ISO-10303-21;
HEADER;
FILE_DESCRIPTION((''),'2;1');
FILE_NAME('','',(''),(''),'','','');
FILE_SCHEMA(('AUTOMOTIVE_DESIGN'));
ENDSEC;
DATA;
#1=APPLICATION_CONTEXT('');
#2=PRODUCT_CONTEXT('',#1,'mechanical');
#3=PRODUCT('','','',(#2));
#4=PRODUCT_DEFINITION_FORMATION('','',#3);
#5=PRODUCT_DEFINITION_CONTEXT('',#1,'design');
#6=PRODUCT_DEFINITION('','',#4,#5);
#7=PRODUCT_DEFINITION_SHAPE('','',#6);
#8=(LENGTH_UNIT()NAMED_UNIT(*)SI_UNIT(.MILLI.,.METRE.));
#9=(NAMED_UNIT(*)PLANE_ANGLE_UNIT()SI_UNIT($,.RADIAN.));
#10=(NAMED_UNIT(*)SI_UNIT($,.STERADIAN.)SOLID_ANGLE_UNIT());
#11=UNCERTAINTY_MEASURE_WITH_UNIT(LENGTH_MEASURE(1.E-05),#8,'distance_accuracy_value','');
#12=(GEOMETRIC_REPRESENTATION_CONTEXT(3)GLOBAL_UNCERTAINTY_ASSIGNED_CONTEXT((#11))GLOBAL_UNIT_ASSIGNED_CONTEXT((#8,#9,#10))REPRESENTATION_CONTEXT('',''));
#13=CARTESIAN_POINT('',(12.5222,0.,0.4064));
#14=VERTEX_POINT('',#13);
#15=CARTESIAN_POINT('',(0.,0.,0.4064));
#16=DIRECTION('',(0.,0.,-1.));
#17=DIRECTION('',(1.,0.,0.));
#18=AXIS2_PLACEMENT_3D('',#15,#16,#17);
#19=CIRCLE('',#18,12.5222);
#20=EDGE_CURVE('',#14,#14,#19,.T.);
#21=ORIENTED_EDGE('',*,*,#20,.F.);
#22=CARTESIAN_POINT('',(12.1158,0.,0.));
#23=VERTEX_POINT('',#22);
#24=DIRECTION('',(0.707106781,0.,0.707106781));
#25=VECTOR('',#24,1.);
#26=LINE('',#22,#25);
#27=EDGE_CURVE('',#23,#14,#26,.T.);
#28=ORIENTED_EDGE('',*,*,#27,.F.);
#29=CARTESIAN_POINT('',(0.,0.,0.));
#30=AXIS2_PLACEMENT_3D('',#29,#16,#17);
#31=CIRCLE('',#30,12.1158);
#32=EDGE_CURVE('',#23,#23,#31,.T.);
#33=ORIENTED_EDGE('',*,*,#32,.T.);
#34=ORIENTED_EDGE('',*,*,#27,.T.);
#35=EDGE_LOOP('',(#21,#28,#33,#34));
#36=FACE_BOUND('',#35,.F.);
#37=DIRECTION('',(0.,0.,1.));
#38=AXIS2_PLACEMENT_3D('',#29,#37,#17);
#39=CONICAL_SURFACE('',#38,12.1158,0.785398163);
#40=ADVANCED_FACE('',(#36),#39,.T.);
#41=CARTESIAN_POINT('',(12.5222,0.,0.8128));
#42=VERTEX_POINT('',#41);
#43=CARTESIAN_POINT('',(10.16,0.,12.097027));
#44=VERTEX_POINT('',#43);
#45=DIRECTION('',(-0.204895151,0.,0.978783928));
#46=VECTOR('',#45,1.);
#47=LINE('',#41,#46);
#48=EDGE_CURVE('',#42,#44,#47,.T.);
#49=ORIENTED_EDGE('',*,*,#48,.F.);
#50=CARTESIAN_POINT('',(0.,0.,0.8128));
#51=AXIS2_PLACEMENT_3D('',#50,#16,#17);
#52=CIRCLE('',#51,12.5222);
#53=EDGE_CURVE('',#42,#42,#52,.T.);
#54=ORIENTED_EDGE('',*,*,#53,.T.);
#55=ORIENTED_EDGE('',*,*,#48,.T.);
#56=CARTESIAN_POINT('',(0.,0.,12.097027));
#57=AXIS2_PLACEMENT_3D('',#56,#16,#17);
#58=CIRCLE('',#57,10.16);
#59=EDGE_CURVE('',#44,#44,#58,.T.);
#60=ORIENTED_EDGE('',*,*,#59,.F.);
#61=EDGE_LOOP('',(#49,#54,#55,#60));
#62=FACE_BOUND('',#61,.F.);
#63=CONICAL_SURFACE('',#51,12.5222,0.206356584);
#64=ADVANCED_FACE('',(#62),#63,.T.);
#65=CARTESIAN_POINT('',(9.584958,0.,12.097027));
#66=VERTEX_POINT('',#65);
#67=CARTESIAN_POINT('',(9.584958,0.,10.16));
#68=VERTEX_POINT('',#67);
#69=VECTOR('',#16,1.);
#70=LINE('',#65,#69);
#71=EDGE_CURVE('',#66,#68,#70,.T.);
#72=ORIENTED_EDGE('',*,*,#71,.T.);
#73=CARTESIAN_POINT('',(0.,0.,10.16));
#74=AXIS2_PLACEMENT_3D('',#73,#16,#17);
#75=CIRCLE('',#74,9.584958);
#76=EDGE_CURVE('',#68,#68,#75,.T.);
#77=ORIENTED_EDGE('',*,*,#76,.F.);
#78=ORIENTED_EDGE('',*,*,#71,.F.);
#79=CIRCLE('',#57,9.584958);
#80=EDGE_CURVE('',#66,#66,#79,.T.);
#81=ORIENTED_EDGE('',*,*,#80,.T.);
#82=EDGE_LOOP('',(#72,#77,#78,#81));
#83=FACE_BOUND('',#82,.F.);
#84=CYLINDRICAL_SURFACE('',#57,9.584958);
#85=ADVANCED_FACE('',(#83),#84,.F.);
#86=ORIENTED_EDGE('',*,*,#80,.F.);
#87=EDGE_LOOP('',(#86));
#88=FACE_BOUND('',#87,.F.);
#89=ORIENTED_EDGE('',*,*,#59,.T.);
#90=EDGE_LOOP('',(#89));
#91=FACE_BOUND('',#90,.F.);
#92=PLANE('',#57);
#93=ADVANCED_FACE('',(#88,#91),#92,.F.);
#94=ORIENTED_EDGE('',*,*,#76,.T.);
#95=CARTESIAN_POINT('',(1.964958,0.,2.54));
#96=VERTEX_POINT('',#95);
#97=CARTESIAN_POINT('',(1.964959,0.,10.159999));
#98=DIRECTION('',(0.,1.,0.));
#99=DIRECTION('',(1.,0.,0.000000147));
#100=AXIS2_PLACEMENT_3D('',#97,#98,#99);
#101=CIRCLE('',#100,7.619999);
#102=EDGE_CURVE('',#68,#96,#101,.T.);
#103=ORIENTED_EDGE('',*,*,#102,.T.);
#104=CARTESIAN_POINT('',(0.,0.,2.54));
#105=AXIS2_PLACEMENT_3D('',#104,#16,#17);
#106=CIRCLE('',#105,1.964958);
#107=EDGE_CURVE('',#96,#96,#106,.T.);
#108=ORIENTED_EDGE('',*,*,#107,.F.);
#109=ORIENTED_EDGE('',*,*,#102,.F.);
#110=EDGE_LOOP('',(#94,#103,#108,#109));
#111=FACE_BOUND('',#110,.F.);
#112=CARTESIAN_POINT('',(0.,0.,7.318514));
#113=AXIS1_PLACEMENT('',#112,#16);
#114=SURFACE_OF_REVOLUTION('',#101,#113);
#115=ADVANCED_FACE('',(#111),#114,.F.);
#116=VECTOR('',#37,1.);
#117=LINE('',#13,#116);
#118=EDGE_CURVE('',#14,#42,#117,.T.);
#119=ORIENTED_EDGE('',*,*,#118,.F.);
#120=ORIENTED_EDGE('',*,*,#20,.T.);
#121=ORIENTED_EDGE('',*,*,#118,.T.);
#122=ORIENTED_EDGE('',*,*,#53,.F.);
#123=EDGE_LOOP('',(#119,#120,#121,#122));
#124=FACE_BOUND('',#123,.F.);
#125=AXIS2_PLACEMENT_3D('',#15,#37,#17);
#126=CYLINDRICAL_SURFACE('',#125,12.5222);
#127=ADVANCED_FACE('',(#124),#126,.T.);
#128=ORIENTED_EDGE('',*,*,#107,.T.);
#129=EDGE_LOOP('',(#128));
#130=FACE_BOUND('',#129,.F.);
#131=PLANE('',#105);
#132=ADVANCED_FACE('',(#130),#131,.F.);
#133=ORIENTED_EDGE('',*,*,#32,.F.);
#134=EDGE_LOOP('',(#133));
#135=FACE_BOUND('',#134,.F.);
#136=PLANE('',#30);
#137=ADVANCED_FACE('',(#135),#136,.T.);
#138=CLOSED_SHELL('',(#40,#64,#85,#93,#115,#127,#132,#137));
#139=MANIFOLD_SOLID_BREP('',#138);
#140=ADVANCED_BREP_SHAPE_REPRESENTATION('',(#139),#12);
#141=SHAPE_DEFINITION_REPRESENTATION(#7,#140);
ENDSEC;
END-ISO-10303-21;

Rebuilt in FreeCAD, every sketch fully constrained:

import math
import FreeCAD as App
import Part
import Sketcher
from FreeCAD import Vector
Q = App.Units.Quantity

doc = App.newDocument("Part")
body = doc.addObject("PartDesign::Body", "Body")

sketch1 = body.newObject("Sketcher::SketchObject", "Sketch")
sketch1.AttachmentSupport = (doc.getObject("XZ_Plane"), [""])
sketch1.MapMode = "FlatFace"
sketch1.addGeometry(Part.LineSegment(Vector(0, 2.54, 0), Vector(0, 0, 0)), False)
sketch1.addGeometry(Part.LineSegment(Vector(0, 0, 0), Vector(12.12, 0, 0)), False)
sketch1.addGeometry(Part.LineSegment(Vector(12.12, 0, 0), Vector(12.52, 0.41, 0)), False)
sketch1.addGeometry(Part.LineSegment(Vector(12.52, 0.41, 0), Vector(12.52, 0.81, 0)), False)
sketch1.addGeometry(Part.LineSegment(Vector(12.52, 0.81, 0), Vector(10.16, 12.1, 0)), False)
sketch1.addGeometry(Part.LineSegment(Vector(10.16, 12.1, 0), Vector(9.58, 12.1, 0)), False)
sketch1.addGeometry(Part.LineSegment(Vector(9.58, 12.1, 0), Vector(9.58, 10.16, 0)), False)
sketch1.addGeometry(Part.ArcOfCircle(Part.Circle(Vector(1.96, 10.16, 0), Vector(0, 0, 1), 7.62), math.radians(-90), math.radians(0)), False)
sketch1.addGeometry(Part.LineSegment(Vector(1.96, 2.54, 0), Vector(0, 2.54, 0)), False)
sketch1.addConstraint(Sketcher.Constraint("Coincident", 0, 2, 1, 1))
sketch1.addConstraint(Sketcher.Constraint("Coincident", 1, 2, 2, 1))
sketch1.addConstraint(Sketcher.Constraint("Coincident", 2, 2, 3, 1))
sketch1.addConstraint(Sketcher.Constraint("Coincident", 3, 2, 4, 1))
sketch1.addConstraint(Sketcher.Constraint("Coincident", 4, 2, 5, 1))
sketch1.addConstraint(Sketcher.Constraint("Coincident", 5, 2, 6, 1))
sketch1.addConstraint(Sketcher.Constraint("Tangent", 6, 2, 7, 2))
sketch1.addConstraint(Sketcher.Constraint("Tangent", 7, 1, 8, 1))
sketch1.addConstraint(Sketcher.Constraint("Coincident", 8, 2, 0, 1))
sketch1.addConstraint(Sketcher.Constraint("Vertical", 0))
sketch1.addConstraint(Sketcher.Constraint("Horizontal", 1))
sketch1.addConstraint(Sketcher.Constraint("Vertical", 3))
sketch1.addConstraint(Sketcher.Constraint("Horizontal", 5))
sketch1.addConstraint(Sketcher.Constraint("Vertical", 6))
sketch1.addConstraint(Sketcher.Constraint("Horizontal", 8))
sketch1.addConstraint(Sketcher.Constraint("Coincident", 0, 2, -1, 1))
sketch1.addConstraint(Sketcher.Constraint("Radius", 7, Q("0.3 in")))
sketch1.addConstraint(Sketcher.Constraint("DistanceY", 0, 2, 0, 1, Q("0.1 in")))
sketch1.addConstraint(Sketcher.Constraint("Angle", 2, Q("45 deg")))
sketch1.addConstraint(Sketcher.Constraint("DistanceX", -1, 1, 4, 2, Q("0.4 in")))
sketch1.addConstraint(Sketcher.Constraint("DistanceX", 1, 1, 1, 2, Q("0.477 in")))
sketch1.addConstraint(Sketcher.Constraint("DistanceY", 3, 1, 3, 2, Q("0.016 in")))
sketch1.addConstraint(Sketcher.Constraint("DistanceX", -1, 1, 2, 2, Q("0.493 in")))
sketch1.addConstraint(Sketcher.Constraint("DistanceX", 5, 2, 5, 1, 0.575042))
sketch1.addConstraint(Sketcher.Constraint("DistanceY", 6, 2, 6, 1, 1.937027))
revolution = body.newObject("PartDesign::Revolution", "Revolution")
revolution.Profile = sketch1
revolution.ReferenceAxis = (sketch1, ["V_Axis"])
revolution.Angle = 360

doc.recompute()
